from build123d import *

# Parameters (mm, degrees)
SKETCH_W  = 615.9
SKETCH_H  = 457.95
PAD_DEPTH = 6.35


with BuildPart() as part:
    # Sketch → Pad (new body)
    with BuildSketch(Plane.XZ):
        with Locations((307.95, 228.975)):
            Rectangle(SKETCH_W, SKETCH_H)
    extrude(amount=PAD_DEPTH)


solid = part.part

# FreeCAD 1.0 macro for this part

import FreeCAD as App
import Part
import Sketcher

V = App.Vector

doc = App.newDocument("Part")
body = doc.addObject("PartDesign::Body", "Body")

# Sketch on XZ plane
sketch1 = body.newObject("Sketcher::SketchObject", "Sketch")
sketch1.AttachmentSupport = (doc.getObject("XZ_Plane"), [""])
sketch1.MapMode = "FlatFace"
sketch1.addGeometry(Part.LineSegment(V(0, 457.95, 0), V(0, 0, 0)), False)
sketch1.addGeometry(Part.LineSegment(V(0, 0, 0), V(615.9, 0, 0)), False)
sketch1.addGeometry(Part.LineSegment(V(615.9, 0, 0), V(615.9, 457.95, 0)), False)
sketch1.addGeometry(Part.LineSegment(V(615.9, 457.95, 0), V(0, 457.95, 0)), False)
sketch1.addConstraint(Sketcher.Constraint("Coincident", 0, 2, 1, 1))
sketch1.addConstraint(Sketcher.Constraint("Coincident", 1, 2, 2, 1))
sketch1.addConstraint(Sketcher.Constraint("Coincident", 2, 2, 3, 1))
sketch1.addConstraint(Sketcher.Constraint("Coincident", 3, 2, 0, 1))
sketch1.addConstraint(Sketcher.Constraint("Vertical", 0))
sketch1.addConstraint(Sketcher.Constraint("Horizontal", 1))
sketch1.addConstraint(Sketcher.Constraint("Vertical", 2))
sketch1.addConstraint(Sketcher.Constraint("Horizontal", 3))
sketch1.addConstraint(Sketcher.Constraint("Coincident", 0, 2, -1, 1))
sketch1.addConstraint(Sketcher.Constraint("DistanceX", 1, 1, 1, 2, 615.9))
sketch1.addConstraint(Sketcher.Constraint("DistanceY", 0, 2, 0, 1, 457.95))
pad1 = body.newObject("PartDesign::Pad", "Pad")
pad1.Profile = sketch1
pad1.Length = 6.35

doc.recompute()
